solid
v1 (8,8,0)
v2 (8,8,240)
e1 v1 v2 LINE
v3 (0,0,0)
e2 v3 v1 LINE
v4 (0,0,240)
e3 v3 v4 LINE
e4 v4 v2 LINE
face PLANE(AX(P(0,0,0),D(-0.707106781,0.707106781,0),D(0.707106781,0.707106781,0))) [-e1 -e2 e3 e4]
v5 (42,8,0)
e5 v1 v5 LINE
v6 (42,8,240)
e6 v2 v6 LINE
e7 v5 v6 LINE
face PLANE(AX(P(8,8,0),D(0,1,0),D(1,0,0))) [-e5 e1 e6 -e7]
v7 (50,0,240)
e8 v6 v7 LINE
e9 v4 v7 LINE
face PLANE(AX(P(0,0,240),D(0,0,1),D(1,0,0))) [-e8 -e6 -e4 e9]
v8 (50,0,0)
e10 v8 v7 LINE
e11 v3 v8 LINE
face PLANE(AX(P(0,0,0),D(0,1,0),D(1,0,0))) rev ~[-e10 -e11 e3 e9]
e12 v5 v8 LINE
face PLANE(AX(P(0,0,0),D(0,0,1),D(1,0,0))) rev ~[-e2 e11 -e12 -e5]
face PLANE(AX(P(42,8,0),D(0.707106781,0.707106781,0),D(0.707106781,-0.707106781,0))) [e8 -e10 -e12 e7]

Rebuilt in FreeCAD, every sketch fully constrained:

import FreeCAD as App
import Part
import Sketcher


def add_polygon(sketch, points):
    """Adds a closed chain of lines whose ends are joined by coincident constraints."""
    first, n = sketch.GeometryCount, len(points)
    for a, b in zip(points, points[1:] + points[:1]):
        sketch.addGeometry(Part.LineSegment(App.Vector(*a, 0), App.Vector(*b, 0)), False)
    for i in range(n):
        sketch.addConstraint(Sketcher.Constraint("Coincident", first + i, 2, first + (i + 1) % n, 1))

doc = App.newDocument("Part")
body = doc.addObject("PartDesign::Body", "Body")

sketch1 = doc.addObject("Sketcher::SketchObject", "Sketch")
body.addObject(sketch1)
sketch1.AttachmentSupport = (doc.XY_Plane, [""])
sketch1.MapMode = "FlatFace"
add_polygon(sketch1, [(8, 8), (0, 0), (50, 0), (42, 8)])
sketch1.addConstraint(Sketcher.Constraint("Horizontal", 1))
sketch1.addConstraint(Sketcher.Constraint("Horizontal", 3))
sketch1.addConstraint(Sketcher.Constraint("Coincident", 0, 2, -1, 1))
sketch1.addConstraint(Sketcher.Constraint("Perpendicular", 0, 2))
sketch1.addConstraint(Sketcher.Constraint("Equal", 0, 2))
sketch1.addConstraint(Sketcher.Constraint("DistanceX", 1, 1, 1, 2, 50.0))
sketch1.addConstraint(Sketcher.Constraint("DistanceY", -1, 1, 2, 2, 8.0))
pad1 = doc.addObject("PartDesign::Pad", "Pad")
body.addObject(pad1)
pad1.Profile = sketch1
pad1.Length = 240

doc.recompute()
